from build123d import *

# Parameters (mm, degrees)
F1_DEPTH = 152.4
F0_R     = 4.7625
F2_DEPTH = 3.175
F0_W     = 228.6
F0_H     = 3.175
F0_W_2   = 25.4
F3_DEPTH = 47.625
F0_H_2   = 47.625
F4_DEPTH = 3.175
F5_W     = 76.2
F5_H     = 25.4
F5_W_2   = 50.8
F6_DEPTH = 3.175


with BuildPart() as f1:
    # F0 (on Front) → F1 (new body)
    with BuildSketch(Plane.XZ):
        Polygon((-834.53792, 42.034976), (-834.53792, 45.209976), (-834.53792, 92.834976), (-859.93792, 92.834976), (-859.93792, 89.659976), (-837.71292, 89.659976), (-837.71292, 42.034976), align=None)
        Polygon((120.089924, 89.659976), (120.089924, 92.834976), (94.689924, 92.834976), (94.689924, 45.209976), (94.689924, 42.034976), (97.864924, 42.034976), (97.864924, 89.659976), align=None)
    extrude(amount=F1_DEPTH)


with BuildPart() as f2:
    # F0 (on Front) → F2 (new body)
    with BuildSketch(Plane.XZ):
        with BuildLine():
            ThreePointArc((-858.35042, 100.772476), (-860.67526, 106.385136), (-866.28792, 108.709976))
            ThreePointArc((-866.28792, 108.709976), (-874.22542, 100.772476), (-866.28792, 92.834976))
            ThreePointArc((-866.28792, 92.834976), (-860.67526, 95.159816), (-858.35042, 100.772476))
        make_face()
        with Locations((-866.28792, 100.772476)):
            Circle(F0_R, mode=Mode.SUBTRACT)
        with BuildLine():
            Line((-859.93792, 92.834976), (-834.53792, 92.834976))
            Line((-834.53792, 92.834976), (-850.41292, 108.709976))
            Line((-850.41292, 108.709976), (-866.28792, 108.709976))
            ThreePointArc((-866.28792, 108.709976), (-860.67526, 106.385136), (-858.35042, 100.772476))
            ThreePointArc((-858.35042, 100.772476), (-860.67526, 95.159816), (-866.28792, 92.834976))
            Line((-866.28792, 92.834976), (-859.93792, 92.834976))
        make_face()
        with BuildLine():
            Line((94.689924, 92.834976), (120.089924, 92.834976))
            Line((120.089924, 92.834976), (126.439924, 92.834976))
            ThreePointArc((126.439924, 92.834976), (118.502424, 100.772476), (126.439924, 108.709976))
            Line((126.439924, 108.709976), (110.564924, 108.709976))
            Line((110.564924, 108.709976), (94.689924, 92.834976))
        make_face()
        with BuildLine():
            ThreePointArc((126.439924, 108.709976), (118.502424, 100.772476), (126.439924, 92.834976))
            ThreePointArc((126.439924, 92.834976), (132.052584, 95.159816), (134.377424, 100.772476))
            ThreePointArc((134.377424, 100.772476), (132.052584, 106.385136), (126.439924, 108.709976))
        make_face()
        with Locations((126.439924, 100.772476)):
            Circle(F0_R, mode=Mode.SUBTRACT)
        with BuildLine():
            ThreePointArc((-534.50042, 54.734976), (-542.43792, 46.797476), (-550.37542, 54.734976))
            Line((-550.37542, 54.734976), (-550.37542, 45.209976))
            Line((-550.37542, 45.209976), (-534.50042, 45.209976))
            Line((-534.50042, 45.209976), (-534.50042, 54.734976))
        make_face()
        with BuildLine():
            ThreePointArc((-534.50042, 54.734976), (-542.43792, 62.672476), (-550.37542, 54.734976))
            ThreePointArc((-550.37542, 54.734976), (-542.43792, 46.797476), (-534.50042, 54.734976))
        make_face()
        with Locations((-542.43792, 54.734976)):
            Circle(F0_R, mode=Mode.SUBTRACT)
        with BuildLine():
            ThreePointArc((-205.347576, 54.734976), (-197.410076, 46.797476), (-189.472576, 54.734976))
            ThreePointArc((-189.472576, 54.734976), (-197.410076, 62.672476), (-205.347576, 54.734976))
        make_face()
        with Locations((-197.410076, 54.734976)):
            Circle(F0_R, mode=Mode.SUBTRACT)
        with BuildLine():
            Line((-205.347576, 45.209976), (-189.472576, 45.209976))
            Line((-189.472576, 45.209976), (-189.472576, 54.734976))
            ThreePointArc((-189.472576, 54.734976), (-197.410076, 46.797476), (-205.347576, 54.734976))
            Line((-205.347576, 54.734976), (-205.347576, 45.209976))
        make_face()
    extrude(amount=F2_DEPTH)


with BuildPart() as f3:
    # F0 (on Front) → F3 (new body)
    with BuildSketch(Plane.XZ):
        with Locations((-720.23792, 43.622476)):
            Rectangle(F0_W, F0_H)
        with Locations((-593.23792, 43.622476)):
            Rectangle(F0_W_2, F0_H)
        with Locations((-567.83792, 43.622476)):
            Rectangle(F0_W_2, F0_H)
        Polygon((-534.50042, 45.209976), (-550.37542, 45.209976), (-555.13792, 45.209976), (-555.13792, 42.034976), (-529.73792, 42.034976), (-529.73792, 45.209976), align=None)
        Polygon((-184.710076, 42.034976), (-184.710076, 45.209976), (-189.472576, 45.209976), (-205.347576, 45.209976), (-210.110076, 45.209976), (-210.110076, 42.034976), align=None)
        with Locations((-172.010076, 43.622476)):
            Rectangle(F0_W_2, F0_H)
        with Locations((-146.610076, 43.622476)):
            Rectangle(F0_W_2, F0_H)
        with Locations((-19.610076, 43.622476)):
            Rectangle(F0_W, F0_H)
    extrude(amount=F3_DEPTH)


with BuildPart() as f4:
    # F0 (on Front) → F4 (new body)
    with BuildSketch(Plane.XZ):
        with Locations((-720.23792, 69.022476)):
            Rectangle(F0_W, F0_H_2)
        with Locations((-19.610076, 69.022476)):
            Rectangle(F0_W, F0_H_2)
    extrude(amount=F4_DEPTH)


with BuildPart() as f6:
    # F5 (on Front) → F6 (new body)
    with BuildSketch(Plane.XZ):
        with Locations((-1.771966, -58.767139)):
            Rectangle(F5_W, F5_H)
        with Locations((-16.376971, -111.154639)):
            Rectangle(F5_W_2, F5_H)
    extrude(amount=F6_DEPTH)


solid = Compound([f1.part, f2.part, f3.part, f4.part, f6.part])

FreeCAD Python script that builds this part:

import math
import FreeCAD as App
import Part
import Sketcher
Q = App.Units.Quantity

doc = App.newDocument("Part")
body = doc.addObject("PartDesign::Body", "Body")
body.AllowCompound = True

sketch1 = doc.addObject("Sketcher::SketchObject", "Sketch")
body.addObject(sketch1)
sketch1.AttachmentSupport = (doc.XZ_Plane, [""])
sketch1.MapMode = "FlatFace"
sketch1.addGeometry([
    Part.LineSegment(App.Vector(-834.5, 42, 0), App.Vector(-834.5, 92.8, 0)),
    Part.LineSegment(App.Vector(-834.5, 92.8, 0), App.Vector(-859.9, 92.8, 0)),
    Part.LineSegment(App.Vector(-859.9, 92.8, 0), App.Vector(-859.9, 89.7, 0)),
    Part.LineSegment(App.Vector(-859.9, 89.7, 0), App.Vector(-837.7, 89.7, 0)),
    Part.LineSegment(App.Vector(-837.7, 89.7, 0), App.Vector(-837.7, 42, 0)),
    Part.LineSegment(App.Vector(-837.7, 42, 0), App.Vector(-834.5, 42, 0)),
    Part.LineSegment(App.Vector(120.1, 89.7, 0), App.Vector(120.1, 92.8, 0)),
    Part.LineSegment(App.Vector(120.1, 92.8, 0), App.Vector(94.7, 92.8, 0)),
    Part.LineSegment(App.Vector(94.7, 92.8, 0), App.Vector(94.7, 42, 0)),
    Part.LineSegment(App.Vector(94.7, 42, 0), App.Vector(97.9, 42, 0)),
    Part.LineSegment(App.Vector(97.9, 42, 0), App.Vector(97.9, 89.7, 0)),
    Part.LineSegment(App.Vector(97.9, 89.7, 0), App.Vector(120.1, 89.7, 0)),
], False)
sketch1.addConstraint([
    Sketcher.Constraint("Coincident", 0, 2, 1, 1),
    Sketcher.Constraint("Coincident", 1, 2, 2, 1),
    Sketcher.Constraint("Coincident", 2, 2, 3, 1),
    Sketcher.Constraint("Coincident", 3, 2, 4, 1),
    Sketcher.Constraint("Coincident", 4, 2, 5, 1),
    Sketcher.Constraint("Coincident", 5, 2, 0, 1),
    Sketcher.Constraint("Coincident", 6, 2, 7, 1),
    Sketcher.Constraint("Coincident", 7, 2, 8, 1),
    Sketcher.Constraint("Coincident", 8, 2, 9, 1),
    Sketcher.Constraint("Coincident", 9, 2, 10, 1),
    Sketcher.Constraint("Coincident", 10, 2, 11, 1),
    Sketcher.Constraint("Coincident", 11, 2, 6, 1),
    Sketcher.Constraint("Vertical", 0),
    Sketcher.Constraint("Horizontal", 1),
    Sketcher.Constraint("Vertical", 2),
    Sketcher.Constraint("Horizontal", 3),
    Sketcher.Constraint("Vertical", 4),
    Sketcher.Constraint("Horizontal", 5),
    Sketcher.Constraint("Vertical", 6),
    Sketcher.Constraint("Horizontal", 7),
    Sketcher.Constraint("Vertical", 8),
    Sketcher.Constraint("Horizontal", 9),
    Sketcher.Constraint("Vertical", 10),
    Sketcher.Constraint("Horizontal", 11),
    Sketcher.Constraint("Horizontal", 1, 2, 6, 2),
    Sketcher.Constraint("Horizontal", 5, 2, 8, 2),
    Sketcher.Constraint("Horizontal", 3, 2, 10, 2),
    Sketcher.Constraint("Equal", 1, 7),
    Sketcher.Constraint("Equal", 5, 9),
    Sketcher.Constraint("Equal", 9, 2),
    Sketcher.Constraint("DistanceX", 1, 2, 1, 1, Q("1 in")),
    Sketcher.Constraint("DistanceY", 0, 1, 0, 2, Q("2 in")),
    Sketcher.Constraint("DistanceX", 3, 1, 3, 2, Q("0.875 in")),
    Sketcher.Constraint("DistanceX", 0, 2, -1, 1, 834.53792),
    Sketcher.Constraint("DistanceY", -1, 1, 0, 2, 92.834976),
    Sketcher.Constraint("DistanceX", -1, 1, 6, 2, 120.089924),
])
pad1 = doc.addObject("PartDesign::Pad", "Pad")
body.addObject(pad1)
pad1.Profile = sketch1
pad1.Length = Q("6 in")
body2 = doc.addObject("PartDesign::Body", "Body001")
body2.AllowCompound = True

sketch2 = doc.addObject("Sketcher::SketchObject", "Sketch001")
body2.addObject(sketch2)
sketch2.AttachmentSupport = (doc.getObject("XZ_Plane001"), [""])
sketch2.MapMode = "FlatFace"
sketch2.addGeometry([
    Part.ArcOfCircle(Part.Circle(App.Vector(-866.3, 100.8, 0), App.Vector(0, 0, 1), 7.9), math.radians(90), math.radians(270)),
    Part.LineSegment(App.Vector(-866.3, 92.8, 0), App.Vector(-834.5, 92.8, 0)),
    Part.LineSegment(App.Vector(-834.5, 92.8, 0), App.Vector(-850.4, 108.7, 0)),
    Part.LineSegment(App.Vector(-850.4, 108.7, 0), App.Vector(-866.3, 108.7, 0)),
    Part.Circle(App.Vector(-866.3, 100.8, 0), App.Vector(0, 0, 1), 4.8),
    Part.LineSegment(App.Vector(94.7, 92.8, 0), App.Vector(126.4, 92.8, 0)),
    Part.ArcOfCircle(Part.Circle(App.Vector(126.4, 100.8, 0), App.Vector(0, 0, 1), 7.9), math.radians(-90), math.radians(0)),
    Part.ArcOfCircle(Part.Circle(App.Vector(126.4, 100.8, 0), App.Vector(0, 0, 1), 7.9), math.radians(0), math.radians(90)),
    Part.LineSegment(App.Vector(126.4, 108.7, 0), App.Vector(110.6, 108.7, 0)),
    Part.LineSegment(App.Vector(110.6, 108.7, 0), App.Vector(94.7, 92.8, 0)),
    Part.Circle(App.Vector(126.4, 100.8, 0), App.Vector(0, 0, 1), 4.8),
    Part.LineSegment(App.Vector(-550.4, 54.7, 0), App.Vector(-550.4, 45.2, 0)),
    Part.LineSegment(App.Vector(-550.4, 45.2, 0), App.Vector(-534.5, 45.2, 0)),
    Part.LineSegment(App.Vector(-534.5, 45.2, 0), App.Vector(-534.5, 54.7, 0)),
    Part.ArcOfCircle(Part.Circle(App.Vector(-542.4, 54.7, 0), App.Vector(0, 0, 1), 7.9), math.radians(0), math.radians(180)),
    Part.Circle(App.Vector(-542.4, 54.7, 0), App.Vector(0, 0, 1), 4.8),
    Part.ArcOfCircle(Part.Circle(App.Vector(-197.4, 54.7, 0), App.Vector(0, 0, 1), 7.9), math.radians(0), math.radians(180)),
    Part.LineSegment(App.Vector(-205.3, 54.7, 0), App.Vector(-205.3, 45.2, 0)),
    Part.LineSegment(App.Vector(-205.3, 45.2, 0), App.Vector(-189.5, 45.2, 0)),
    Part.LineSegment(App.Vector(-189.5, 45.2, 0), App.Vector(-189.5, 54.7, 0)),
    Part.Circle(App.Vector(-197.4, 54.7, 0), App.Vector(0, 0, 1), 4.8),
], False)
sketch2.addConstraint([
    Sketcher.Constraint("Tangent", 0, 2, 1, 1),
    Sketcher.Constraint("Coincident", 1, 2, 2, 1),
    Sketcher.Constraint("Coincident", 2, 2, 3, 1),
    Sketcher.Constraint("Tangent", 3, 2, 0, 1),
    Sketcher.Constraint("Tangent", 5, 2, 6, 1),
    Sketcher.Constraint("Tangent", 6, 2, 7, 1),
    Sketcher.Constraint("Tangent", 7, 2, 8, 1),
    Sketcher.Constraint("Coincident", 8, 2, 9, 1),
    Sketcher.Constraint("Coincident", 9, 2, 5, 1),
    Sketcher.Constraint("Coincident", 11, 2, 12, 1),
    Sketcher.Constraint("Coincident", 12, 2, 13, 1),
    Sketcher.Constraint("Tangent", 13, 2, 14, 1),
    Sketcher.Constraint("Tangent", 14, 2, 11, 1),
    Sketcher.Constraint("Tangent", 16, 2, 17, 1),
    Sketcher.Constraint("Coincident", 17, 2, 18, 1),
    Sketcher.Constraint("Coincident", 18, 2, 19, 1),
    Sketcher.Constraint("Tangent", 19, 2, 16, 1),
    Sketcher.Constraint("Horizontal", 1),
    Sketcher.Constraint("Horizontal", 3),
    Sketcher.Constraint("Horizontal", 5),
    Sketcher.Constraint("Horizontal", 8),
    Sketcher.Constraint("Vertical", 11),
    Sketcher.Constraint("Horizontal", 12),
    Sketcher.Constraint("Vertical", 13),
    Sketcher.Constraint("Vertical", 17),
    Sketcher.Constraint("Horizontal", 18),
    Sketcher.Constraint("Vertical", 19),
    Sketcher.Constraint("Coincident", 4, 3, 0, 3),
    Sketcher.Constraint("Coincident", 10, 3, 6, 3),
    Sketcher.Constraint("Coincident", 15, 3, 14, 3),
    Sketcher.Constraint("Coincident", 20, 3, 16, 3),
    Sketcher.Constraint("Equal", 0, 6),
    Sketcher.Constraint("Equal", 6, 7),
    Sketcher.Constraint("Equal", 4, 10),
    Sketcher.Constraint("Equal", 7, 14),
    Sketcher.Constraint("Equal", 10, 15),
    Sketcher.Constraint("Equal", 14, 16),
    Sketcher.Constraint("Equal", 15, 20),
    Sketcher.Constraint("Perpendicular", 2, 9),
    Sketcher.Constraint("Horizontal", 4, 3, 6, 3),
    Sketcher.Constraint("Horizontal", 15, 3, 16, 3),
    Sketcher.Constraint("Horizontal", 10, 3, 6, 2),
    Sketcher.Constraint("Horizontal", 12, 2, 17, 2),
    Sketcher.Constraint("Equal", 1, 5),
    Sketcher.Constraint("Equal", 3, 8),
    Sketcher.Constraint("Equal", 8, 12),
    Sketcher.Constraint("Diameter", 4, Q("0.375 in")),
    Sketcher.Constraint("Radius", 0, Q("0.3125 in")),
    Sketcher.Constraint("DistanceY", 14, 3, 0, 2, Q("1.5 in")),
    Sketcher.Constraint("DistanceX", 1, 2, 14, 3, Q("11.5 in")),
    Sketcher.Constraint("DistanceY", 11, 2, 2, 2, Q("2.5 in")),
    Sketcher.Constraint("DistanceX", 16, 3, 7, 3, Q("12.75 in")),
    Sketcher.Constraint("DistanceX", 0, 3, -1, 1, 866.28792),
    Sketcher.Constraint("DistanceY", -1, 1, 0, 3, 100.772476),
    Sketcher.Constraint("DistanceX", -1, 1, 6, 3, 126.439924),
])
pad2 = doc.addObject("PartDesign::Pad", "Pad001")
body2.addObject(pad2)
pad2.Profile = sketch2
pad2.Length = Q("0.125 in")
body3 = doc.addObject("PartDesign::Body", "Body002")
body3.AllowCompound = True

sketch3 = doc.addObject("Sketcher::SketchObject", "Sketch002")
body3.addObject(sketch3)
sketch3.AttachmentSupport = (doc.getObject("XZ_Plane002"), [""])
sketch3.MapMode = "FlatFace"
sketch3.addGeometry([
    Part.LineSegment(App.Vector(-834.5, 45.2, 0), App.Vector(-834.5, 42, 0)),
    Part.LineSegment(App.Vector(-834.5, 42, 0), App.Vector(-529.7, 42, 0)),
    Part.LineSegment(App.Vector(-529.7, 42, 0), App.Vector(-529.7, 45.2, 0)),
    Part.LineSegment(App.Vector(-529.7, 45.2, 0), App.Vector(-834.5, 45.2, 0)),
    Part.LineSegment(App.Vector(-210.1, 45.2, 0), App.Vector(-210.1, 42, 0)),
    Part.LineSegment(App.Vector(-210.1, 42, 0), App.Vector(94.7, 42, 0)),
    Part.LineSegment(App.Vector(94.7, 42, 0), App.Vector(94.7, 45.2, 0)),
    Part.LineSegment(App.Vector(94.7, 45.2, 0), App.Vector(-210.1, 45.2, 0)),
], False)
sketch3.addConstraint([
    Sketcher.Constraint("Coincident", 0, 2, 1, 1),
    Sketcher.Constraint("Coincident", 1, 2, 2, 1),
    Sketcher.Constraint("Coincident", 2, 2, 3, 1),
    Sketcher.Constraint("Coincident", 3, 2, 0, 1),
    Sketcher.Constraint("Coincident", 4, 2, 5, 1),
    Sketcher.Constraint("Coincident", 5, 2, 6, 1),
    Sketcher.Constraint("Coincident", 6, 2, 7, 1),
    Sketcher.Constraint("Coincident", 7, 2, 4, 1),
    Sketcher.Constraint("Vertical", 0),
    Sketcher.Constraint("Horizontal", 1),
    Sketcher.Constraint("Vertical", 2),
    Sketcher.Constraint("Horizontal", 3),
    Sketcher.Constraint("Vertical", 4),
    Sketcher.Constraint("Horizontal", 5),
    Sketcher.Constraint("Vertical", 6),
    Sketcher.Constraint("Horizontal", 7),
    Sketcher.Constraint("Horizontal", 1, 2, 4, 2),
    Sketcher.Constraint("Horizontal", 3, 2, 6, 2),
    Sketcher.Constraint("Equal", 3, 5),
    Sketcher.Constraint("DistanceX", 1, 1, 1, 2, Q("12 in")),
    Sketcher.Constraint("DistanceY", 0, 2, 0, 1, Q("0.125 in")),
    Sketcher.Constraint("DistanceX", 0, 2, -1, 1, 834.53792),
    Sketcher.Constraint("DistanceY", -1, 1, 0, 2, 42.034976),
    Sketcher.Constraint("DistanceX", 4, 2, -1, 1, 210.110076),
])
pad3 = doc.addObject("PartDesign::Pad", "Pad002")
body3.addObject(pad3)
pad3.Profile = sketch3
pad3.Length = Q("1.875 in")
body4 = doc.addObject("PartDesign::Body", "Body003")
body4.AllowCompound = True

sketch4 = doc.addObject("Sketcher::SketchObject", "Sketch003")
body4.addObject(sketch4)
sketch4.AttachmentSupport = (doc.getObject("XZ_Plane003"), [""])
sketch4.MapMode = "FlatFace"
sketch4.addGeometry([
    Part.LineSegment(App.Vector(-835, 93, 0), App.Vector(-835, 45, 0)),
    Part.LineSegment(App.Vector(-835, 45, 0), App.Vector(-606, 45, 0)),
    Part.LineSegment(App.Vector(-606, 45, 0), App.Vector(-606, 93, 0)),
    Part.LineSegment(App.Vector(-606, 93, 0), App.Vector(-835, 93, 0)),
    Part.LineSegment(App.Vector(-134, 93, 0), App.Vector(-134, 45, 0)),
    Part.LineSegment(App.Vector(-134, 45, 0), App.Vector(95, 45, 0)),
    Part.LineSegment(App.Vector(95, 45, 0), App.Vector(95, 93, 0)),
    Part.LineSegment(App.Vector(95, 93, 0), App.Vector(-134, 93, 0)),
], False)
sketch4.addConstraint([
    Sketcher.Constraint("Coincident", 0, 2, 1, 1),
    Sketcher.Constraint("Coincident", 1, 2, 2, 1),
    Sketcher.Constraint("Coincident", 2, 2, 3, 1),
    Sketcher.Constraint("Coincident", 3, 2, 0, 1),
    Sketcher.Constraint("Coincident", 4, 2, 5, 1),
    Sketcher.Constraint("Coincident", 5, 2, 6, 1),
    Sketcher.Constraint("Coincident", 6, 2, 7, 1),
    Sketcher.Constraint("Coincident", 7, 2, 4, 1),
    Sketcher.Constraint("Vertical", 0),
    Sketcher.Constraint("Horizontal", 1),
    Sketcher.Constraint("Vertical", 2),
    Sketcher.Constraint("Horizontal", 3),
    Sketcher.Constraint("Vertical", 4),
    Sketcher.Constraint("Horizontal", 5),
    Sketcher.Constraint("Vertical", 6),
    Sketcher.Constraint("Horizontal", 7),
    Sketcher.Constraint("Horizontal", 1, 2, 4, 2),
    Sketcher.Constraint("Horizontal", 3, 2, 6, 2),
    Sketcher.Constraint("Equal", 3, 5),
    Sketcher.Constraint("DistanceX", 1, 1, 1, 2, Q("9 in")),
    Sketcher.Constraint("DistanceY", 0, 2, 0, 1, Q("1.875 in")),
    Sketcher.Constraint("DistanceX", 0, 2, -1, 1, 834.53792),
    Sketcher.Constraint("DistanceY", -1, 1, 0, 2, 45.209976),
    Sketcher.Constraint("DistanceX", 4, 2, -1, 1, 133.910076),
])
pad4 = doc.addObject("PartDesign::Pad", "Pad003")
body4.addObject(pad4)
pad4.Profile = sketch4
pad4.Length = Q("0.125 in")
body5 = doc.addObject("PartDesign::Body", "Body004")
body5.AllowCompound = True

sketch5 = doc.addObject("Sketcher::SketchObject", "Sketch004")
body5.addObject(sketch5)
sketch5.AttachmentSupport = (doc.getObject("XZ_Plane004"), [""])
sketch5.MapMode = "FlatFace"
sketch5.addGeometry([
    Part.LineSegment(App.Vector(-40, -46, 0), App.Vector(-40, -71, 0)),
    Part.LineSegment(App.Vector(-40, -71, 0), App.Vector(36, -71, 0)),
    Part.LineSegment(App.Vector(36, -71, 0), App.Vector(36, -46, 0)),
    Part.LineSegment(App.Vector(36, -46, 0), App.Vector(-40, -46, 0)),
    Part.LineSegment(App.Vector(-42, -98, 0), App.Vector(-42, -124, 0)),
    Part.LineSegment(App.Vector(-42, -124, 0), App.Vector(9, -124, 0)),
    Part.LineSegment(App.Vector(9, -124, 0), App.Vector(9, -98, 0)),
    Part.LineSegment(App.Vector(9, -98, 0), App.Vector(-42, -98, 0)),
], False)
sketch5.addConstraint([
    Sketcher.Constraint("Coincident", 0, 2, 1, 1),
    Sketcher.Constraint("Coincident", 1, 2, 2, 1),
    Sketcher.Constraint("Coincident", 2, 2, 3, 1),
    Sketcher.Constraint("Coincident", 3, 2, 0, 1),
    Sketcher.Constraint("Coincident", 4, 2, 5, 1),
    Sketcher.Constraint("Coincident", 5, 2, 6, 1),
    Sketcher.Constraint("Coincident", 6, 2, 7, 1),
    Sketcher.Constraint("Coincident", 7, 2, 4, 1),
    Sketcher.Constraint("Vertical", 0),
    Sketcher.Constraint("Horizontal", 1),
    Sketcher.Constraint("Vertical", 2),
    Sketcher.Constraint("Horizontal", 3),
    Sketcher.Constraint("Vertical", 4),
    Sketcher.Constraint("Horizontal", 5),
    Sketcher.Constraint("Vertical", 6),
    Sketcher.Constraint("Horizontal", 7),
    Sketcher.Constraint("Equal", 2, 4),
    Sketcher.Constraint("DistanceX", 1, 1, 1, 2, Q("3 in")),
    Sketcher.Constraint("DistanceX", 5, 1, 5, 2, Q("2 in")),
    Sketcher.Constraint("DistanceY", 0, 2, 0, 1, Q("1 in")),
    Sketcher.Constraint("DistanceX", 4, 2, 0, 2, Q("0.0750002 in")),
    Sketcher.Constraint("DistanceY", 4, 2, 0, 2, Q("2.0625 in")),
    Sketcher.Constraint("DistanceY", 0, 2, -1, 1, 71.467139),
    Sketcher.Constraint("DistanceX", 4, 2, -1, 1, 41.776971),
])
pad5 = doc.addObject("PartDesign::Pad", "Pad004")
body5.addObject(pad5)
pad5.Profile = sketch5
pad5.Length = Q("0.125 in")

doc.recompute()
